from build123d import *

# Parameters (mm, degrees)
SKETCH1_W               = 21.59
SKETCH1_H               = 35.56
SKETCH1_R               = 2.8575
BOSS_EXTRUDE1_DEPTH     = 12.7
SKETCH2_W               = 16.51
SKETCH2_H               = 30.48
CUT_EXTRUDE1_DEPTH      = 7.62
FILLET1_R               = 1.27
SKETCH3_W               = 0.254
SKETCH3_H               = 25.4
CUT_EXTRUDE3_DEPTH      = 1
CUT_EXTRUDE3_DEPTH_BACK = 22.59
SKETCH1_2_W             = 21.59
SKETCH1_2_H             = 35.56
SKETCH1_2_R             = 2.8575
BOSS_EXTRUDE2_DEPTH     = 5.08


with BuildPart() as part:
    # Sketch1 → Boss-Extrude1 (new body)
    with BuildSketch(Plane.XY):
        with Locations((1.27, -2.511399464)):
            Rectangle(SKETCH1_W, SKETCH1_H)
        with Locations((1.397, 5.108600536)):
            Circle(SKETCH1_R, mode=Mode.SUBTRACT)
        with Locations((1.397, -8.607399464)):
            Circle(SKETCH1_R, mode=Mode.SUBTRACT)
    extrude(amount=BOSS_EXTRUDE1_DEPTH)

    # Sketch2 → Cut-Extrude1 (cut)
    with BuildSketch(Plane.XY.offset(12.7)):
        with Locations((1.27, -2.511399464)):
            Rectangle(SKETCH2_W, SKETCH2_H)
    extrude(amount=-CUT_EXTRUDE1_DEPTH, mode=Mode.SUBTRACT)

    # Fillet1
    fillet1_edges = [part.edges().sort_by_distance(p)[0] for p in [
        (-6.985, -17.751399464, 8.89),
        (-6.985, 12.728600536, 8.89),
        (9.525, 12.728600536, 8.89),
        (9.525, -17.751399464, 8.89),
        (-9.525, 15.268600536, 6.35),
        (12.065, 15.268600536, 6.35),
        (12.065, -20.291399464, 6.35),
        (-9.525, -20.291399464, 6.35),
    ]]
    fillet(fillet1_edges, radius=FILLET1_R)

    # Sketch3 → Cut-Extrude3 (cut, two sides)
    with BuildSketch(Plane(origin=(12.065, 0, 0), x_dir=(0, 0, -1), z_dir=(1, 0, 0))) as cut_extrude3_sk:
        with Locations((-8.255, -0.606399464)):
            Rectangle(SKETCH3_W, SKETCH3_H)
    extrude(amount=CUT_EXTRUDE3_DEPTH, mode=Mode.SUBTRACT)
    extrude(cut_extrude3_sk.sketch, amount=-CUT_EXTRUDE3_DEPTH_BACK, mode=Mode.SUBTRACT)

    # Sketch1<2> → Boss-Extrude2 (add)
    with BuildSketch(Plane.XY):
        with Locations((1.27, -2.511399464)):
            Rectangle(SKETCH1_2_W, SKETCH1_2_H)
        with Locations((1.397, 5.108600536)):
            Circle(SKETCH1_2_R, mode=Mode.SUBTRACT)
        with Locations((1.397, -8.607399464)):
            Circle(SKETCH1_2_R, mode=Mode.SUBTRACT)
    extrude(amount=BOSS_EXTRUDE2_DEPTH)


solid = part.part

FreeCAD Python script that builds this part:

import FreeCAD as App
import Part
import Sketcher
Q = App.Units.Quantity


def edges_at(feature, points):
    """Names of the edges that pass closest to the given points."""
    edges = feature.Shape.Edges
    near = lambda p: min(range(len(edges)), key=lambda i: edges[i].distToShape(Part.Vertex(*p))[0])
    return sorted({f"Edge{near(p) + 1}" for p in points})


def add_polygon(sketch, points):
    """Adds a closed chain of lines whose ends are joined by coincident constraints."""
    first, n = sketch.GeometryCount, len(points)
    for a, b in zip(points, points[1:] + points[:1]):
        sketch.addGeometry(Part.LineSegment(App.Vector(*a, 0), App.Vector(*b, 0)), False)
    for i in range(n):
        sketch.addConstraint(Sketcher.Constraint("Coincident", first + i, 2, first + (i + 1) % n, 1))

doc = App.newDocument("Part")
body = doc.addObject("PartDesign::Body", "Body")

sketch1 = body.newObject("Sketcher::SketchObject", "Sketch")
sketch1.AttachmentSupport = (doc.getObject("XY_Plane"), [""])
sketch1.MapMode = "FlatFace"
add_polygon(sketch1, [(-9.5, 15.3), (-9.5, -20.3), (12.1, -20.3), (12.1, 15.3)])
sketch1.addGeometry(Part.Circle(App.Vector(1.4, -8.6, 0), App.Vector(0, 0, 1), 2.9), False)
sketch1.addGeometry(Part.Circle(App.Vector(1.4, 5.1, 0), App.Vector(0, 0, 1), 2.9), False)
sketch1.addConstraint(Sketcher.Constraint("Vertical", 0))
sketch1.addConstraint(Sketcher.Constraint("Horizontal", 1))
sketch1.addConstraint(Sketcher.Constraint("Vertical", 2))
sketch1.addConstraint(Sketcher.Constraint("Horizontal", 3))
sketch1.addConstraint(Sketcher.Constraint("Equal", 4, 5))
sketch1.addConstraint(Sketcher.Constraint("Vertical", 4, 3, 5, 3))
sketch1.addConstraint(Sketcher.Constraint("Diameter", 4, Q("0.225 in")))
sketch1.addConstraint(Sketcher.Constraint("DistanceY", 0, 2, 0, 1, Q("1.4 in")))
sketch1.addConstraint(Sketcher.Constraint("DistanceY", 0, 2, 5, 3, Q("1 in")))
sketch1.addConstraint(Sketcher.Constraint("DistanceX", 1, 1, 1, 2, Q("0.85 in")))
sketch1.addConstraint(Sketcher.Constraint("DistanceY", 4, 3, 5, 3, Q("0.54 in")))
sketch1.addConstraint(Sketcher.Constraint("DistanceX", 0, 2, 4, 3, Q("0.43 in")))
sketch1.addConstraint(Sketcher.Constraint("DistanceX", -1, 1, 4, 3, Q("0.055 in")))
sketch1.addConstraint(Sketcher.Constraint("DistanceY", 4, 3, -1, 1, 8.607399))
pad1 = body.newObject("PartDesign::Pad", "Pad")
pad1.Profile = sketch1
pad1.Length = Q("0.5 in")

sketch2 = body.newObject("Sketcher::SketchObject", "Sketch001")
sketch2.AttachmentSupport = (doc.getObject("XY_Plane"), [""])
sketch2.MapMode = "FlatFace"
sketch2.AttachmentOffset = App.Placement(App.Vector(0, 0, 0.5 * 25.4), App.Rotation())
add_polygon(sketch2, [(-7, 13), (-7, -18), (10, -18), (10, 13)])
sketch2.addConstraint(Sketcher.Constraint("Vertical", 0))
sketch2.addConstraint(Sketcher.Constraint("Horizontal", 1))
sketch2.addConstraint(Sketcher.Constraint("Vertical", 2))
sketch2.addConstraint(Sketcher.Constraint("Horizontal", 3))
sketch2.addConstraint(Sketcher.Constraint("DistanceY", 0, 2, 0, 1, Q("1.2 in")))
sketch2.addConstraint(Sketcher.Constraint("DistanceX", 1, 1, 1, 2, Q("0.65 in")))
sketch2.addConstraint(Sketcher.Constraint("DistanceX", 0, 2, -1, 1, Q("0.275 in")))
sketch2.addConstraint(Sketcher.Constraint("DistanceY", 0, 2, -1, 1, 17.751399))
pocket1 = body.newObject("PartDesign::Pocket", "Pocket")
pocket1.Profile = sketch2
pocket1.Length = Q("0.3 in")
doc.recompute()

fillet = body.newObject("PartDesign::Fillet", "Fillet")
fillet.Base = (pocket1, edges_at(pocket1, [
    (-6.985, -17.751, 8.89),
    (-6.985, 12.729, 8.89),
    (9.525, 12.729, 8.89),
    (9.525, -17.751, 8.89),
    (-9.525, 15.269, 6.35),
    (12.065, 15.269, 6.35),
    (12.065, -20.291, 6.35),
    (-9.525, -20.291, 6.35),
]))
fillet.Radius = Q("0.05 in")

sketch3 = body.newObject("Sketcher::SketchObject", "Sketch002")
sketch3.AttachmentSupport = (doc.getObject("YZ_Plane"), [""])
sketch3.MapMode = "FlatFace"
sketch3.AttachmentOffset = App.Placement(App.Vector(0, 0, 0.475 * 25.4), App.Rotation())
add_polygon(sketch3, [(12.09, 8.38), (-13.31, 8.38), (-13.31, 8.13), (12.09, 8.13)])
sketch3.addConstraint(Sketcher.Constraint("Horizontal", 0))
sketch3.addConstraint(Sketcher.Constraint("Vertical", 1))
sketch3.addConstraint(Sketcher.Constraint("Horizontal", 2))
sketch3.addConstraint(Sketcher.Constraint("Vertical", 3))
sketch3.addConstraint(Sketcher.Constraint("DistanceX", 0, 2, 0, 1, Q("1 in")))
sketch3.addConstraint(Sketcher.Constraint("DistanceY", 1, 2, 1, 1, Q("0.01 in")))
sketch3.addConstraint(Sketcher.Constraint("DistanceY", -1, 1, 0, 2, Q("0.33 in")))
sketch3.addConstraint(Sketcher.Constraint("DistanceX", 0, 2, -1, 1, 13.306399))
pocket2 = body.newObject("PartDesign::Pocket", "Pocket001")
pocket2.Profile = sketch3
pocket2.Type = "ThroughAll"
pocket2.Midplane = True

sketch4 = body.newObject("Sketcher::SketchObject", "Sketch003")
sketch4.AttachmentSupport = (doc.getObject("XY_Plane"), [""])
sketch4.MapMode = "FlatFace"
add_polygon(sketch4, [(-9.5, 15.3), (-9.5, -20.3), (12.1, -20.3), (12.1, 15.3)])
sketch4.addGeometry(Part.Circle(App.Vector(1.4, -8.6, 0), App.Vector(0, 0, 1), 2.9), False)
sketch4.addGeometry(Part.Circle(App.Vector(1.4, 5.1, 0), App.Vector(0, 0, 1), 2.9), False)
sketch4.addConstraint(Sketcher.Constraint("Vertical", 0))
sketch4.addConstraint(Sketcher.Constraint("Horizontal", 1))
sketch4.addConstraint(Sketcher.Constraint("Vertical", 2))
sketch4.addConstraint(Sketcher.Constraint("Horizontal", 3))
sketch4.addConstraint(Sketcher.Constraint("Equal", 4, 5))
sketch4.addConstraint(Sketcher.Constraint("Vertical", 4, 3, 5, 3))
sketch4.addConstraint(Sketcher.Constraint("Diameter", 4, Q("0.225 in")))
sketch4.addConstraint(Sketcher.Constraint("DistanceY", 0, 2, 0, 1, Q("1.4 in")))
sketch4.addConstraint(Sketcher.Constraint("DistanceY", 0, 2, 5, 3, Q("1 in")))
sketch4.addConstraint(Sketcher.Constraint("DistanceX", 1, 1, 1, 2, Q("0.85 in")))
sketch4.addConstraint(Sketcher.Constraint("DistanceY", 4, 3, 5, 3, Q("0.54 in")))
sketch4.addConstraint(Sketcher.Constraint("DistanceX", 0, 2, 4, 3, Q("0.43 in")))
sketch4.addConstraint(Sketcher.Constraint("DistanceX", -1, 1, 4, 3, Q("0.055 in")))
sketch4.addConstraint(Sketcher.Constraint("DistanceY", 4, 3, -1, 1, 8.607399))
pad2 = body.newObject("PartDesign::Pad", "Pad001")
pad2.Profile = sketch4
pad2.Length = Q("0.2 in")

doc.recompute()
